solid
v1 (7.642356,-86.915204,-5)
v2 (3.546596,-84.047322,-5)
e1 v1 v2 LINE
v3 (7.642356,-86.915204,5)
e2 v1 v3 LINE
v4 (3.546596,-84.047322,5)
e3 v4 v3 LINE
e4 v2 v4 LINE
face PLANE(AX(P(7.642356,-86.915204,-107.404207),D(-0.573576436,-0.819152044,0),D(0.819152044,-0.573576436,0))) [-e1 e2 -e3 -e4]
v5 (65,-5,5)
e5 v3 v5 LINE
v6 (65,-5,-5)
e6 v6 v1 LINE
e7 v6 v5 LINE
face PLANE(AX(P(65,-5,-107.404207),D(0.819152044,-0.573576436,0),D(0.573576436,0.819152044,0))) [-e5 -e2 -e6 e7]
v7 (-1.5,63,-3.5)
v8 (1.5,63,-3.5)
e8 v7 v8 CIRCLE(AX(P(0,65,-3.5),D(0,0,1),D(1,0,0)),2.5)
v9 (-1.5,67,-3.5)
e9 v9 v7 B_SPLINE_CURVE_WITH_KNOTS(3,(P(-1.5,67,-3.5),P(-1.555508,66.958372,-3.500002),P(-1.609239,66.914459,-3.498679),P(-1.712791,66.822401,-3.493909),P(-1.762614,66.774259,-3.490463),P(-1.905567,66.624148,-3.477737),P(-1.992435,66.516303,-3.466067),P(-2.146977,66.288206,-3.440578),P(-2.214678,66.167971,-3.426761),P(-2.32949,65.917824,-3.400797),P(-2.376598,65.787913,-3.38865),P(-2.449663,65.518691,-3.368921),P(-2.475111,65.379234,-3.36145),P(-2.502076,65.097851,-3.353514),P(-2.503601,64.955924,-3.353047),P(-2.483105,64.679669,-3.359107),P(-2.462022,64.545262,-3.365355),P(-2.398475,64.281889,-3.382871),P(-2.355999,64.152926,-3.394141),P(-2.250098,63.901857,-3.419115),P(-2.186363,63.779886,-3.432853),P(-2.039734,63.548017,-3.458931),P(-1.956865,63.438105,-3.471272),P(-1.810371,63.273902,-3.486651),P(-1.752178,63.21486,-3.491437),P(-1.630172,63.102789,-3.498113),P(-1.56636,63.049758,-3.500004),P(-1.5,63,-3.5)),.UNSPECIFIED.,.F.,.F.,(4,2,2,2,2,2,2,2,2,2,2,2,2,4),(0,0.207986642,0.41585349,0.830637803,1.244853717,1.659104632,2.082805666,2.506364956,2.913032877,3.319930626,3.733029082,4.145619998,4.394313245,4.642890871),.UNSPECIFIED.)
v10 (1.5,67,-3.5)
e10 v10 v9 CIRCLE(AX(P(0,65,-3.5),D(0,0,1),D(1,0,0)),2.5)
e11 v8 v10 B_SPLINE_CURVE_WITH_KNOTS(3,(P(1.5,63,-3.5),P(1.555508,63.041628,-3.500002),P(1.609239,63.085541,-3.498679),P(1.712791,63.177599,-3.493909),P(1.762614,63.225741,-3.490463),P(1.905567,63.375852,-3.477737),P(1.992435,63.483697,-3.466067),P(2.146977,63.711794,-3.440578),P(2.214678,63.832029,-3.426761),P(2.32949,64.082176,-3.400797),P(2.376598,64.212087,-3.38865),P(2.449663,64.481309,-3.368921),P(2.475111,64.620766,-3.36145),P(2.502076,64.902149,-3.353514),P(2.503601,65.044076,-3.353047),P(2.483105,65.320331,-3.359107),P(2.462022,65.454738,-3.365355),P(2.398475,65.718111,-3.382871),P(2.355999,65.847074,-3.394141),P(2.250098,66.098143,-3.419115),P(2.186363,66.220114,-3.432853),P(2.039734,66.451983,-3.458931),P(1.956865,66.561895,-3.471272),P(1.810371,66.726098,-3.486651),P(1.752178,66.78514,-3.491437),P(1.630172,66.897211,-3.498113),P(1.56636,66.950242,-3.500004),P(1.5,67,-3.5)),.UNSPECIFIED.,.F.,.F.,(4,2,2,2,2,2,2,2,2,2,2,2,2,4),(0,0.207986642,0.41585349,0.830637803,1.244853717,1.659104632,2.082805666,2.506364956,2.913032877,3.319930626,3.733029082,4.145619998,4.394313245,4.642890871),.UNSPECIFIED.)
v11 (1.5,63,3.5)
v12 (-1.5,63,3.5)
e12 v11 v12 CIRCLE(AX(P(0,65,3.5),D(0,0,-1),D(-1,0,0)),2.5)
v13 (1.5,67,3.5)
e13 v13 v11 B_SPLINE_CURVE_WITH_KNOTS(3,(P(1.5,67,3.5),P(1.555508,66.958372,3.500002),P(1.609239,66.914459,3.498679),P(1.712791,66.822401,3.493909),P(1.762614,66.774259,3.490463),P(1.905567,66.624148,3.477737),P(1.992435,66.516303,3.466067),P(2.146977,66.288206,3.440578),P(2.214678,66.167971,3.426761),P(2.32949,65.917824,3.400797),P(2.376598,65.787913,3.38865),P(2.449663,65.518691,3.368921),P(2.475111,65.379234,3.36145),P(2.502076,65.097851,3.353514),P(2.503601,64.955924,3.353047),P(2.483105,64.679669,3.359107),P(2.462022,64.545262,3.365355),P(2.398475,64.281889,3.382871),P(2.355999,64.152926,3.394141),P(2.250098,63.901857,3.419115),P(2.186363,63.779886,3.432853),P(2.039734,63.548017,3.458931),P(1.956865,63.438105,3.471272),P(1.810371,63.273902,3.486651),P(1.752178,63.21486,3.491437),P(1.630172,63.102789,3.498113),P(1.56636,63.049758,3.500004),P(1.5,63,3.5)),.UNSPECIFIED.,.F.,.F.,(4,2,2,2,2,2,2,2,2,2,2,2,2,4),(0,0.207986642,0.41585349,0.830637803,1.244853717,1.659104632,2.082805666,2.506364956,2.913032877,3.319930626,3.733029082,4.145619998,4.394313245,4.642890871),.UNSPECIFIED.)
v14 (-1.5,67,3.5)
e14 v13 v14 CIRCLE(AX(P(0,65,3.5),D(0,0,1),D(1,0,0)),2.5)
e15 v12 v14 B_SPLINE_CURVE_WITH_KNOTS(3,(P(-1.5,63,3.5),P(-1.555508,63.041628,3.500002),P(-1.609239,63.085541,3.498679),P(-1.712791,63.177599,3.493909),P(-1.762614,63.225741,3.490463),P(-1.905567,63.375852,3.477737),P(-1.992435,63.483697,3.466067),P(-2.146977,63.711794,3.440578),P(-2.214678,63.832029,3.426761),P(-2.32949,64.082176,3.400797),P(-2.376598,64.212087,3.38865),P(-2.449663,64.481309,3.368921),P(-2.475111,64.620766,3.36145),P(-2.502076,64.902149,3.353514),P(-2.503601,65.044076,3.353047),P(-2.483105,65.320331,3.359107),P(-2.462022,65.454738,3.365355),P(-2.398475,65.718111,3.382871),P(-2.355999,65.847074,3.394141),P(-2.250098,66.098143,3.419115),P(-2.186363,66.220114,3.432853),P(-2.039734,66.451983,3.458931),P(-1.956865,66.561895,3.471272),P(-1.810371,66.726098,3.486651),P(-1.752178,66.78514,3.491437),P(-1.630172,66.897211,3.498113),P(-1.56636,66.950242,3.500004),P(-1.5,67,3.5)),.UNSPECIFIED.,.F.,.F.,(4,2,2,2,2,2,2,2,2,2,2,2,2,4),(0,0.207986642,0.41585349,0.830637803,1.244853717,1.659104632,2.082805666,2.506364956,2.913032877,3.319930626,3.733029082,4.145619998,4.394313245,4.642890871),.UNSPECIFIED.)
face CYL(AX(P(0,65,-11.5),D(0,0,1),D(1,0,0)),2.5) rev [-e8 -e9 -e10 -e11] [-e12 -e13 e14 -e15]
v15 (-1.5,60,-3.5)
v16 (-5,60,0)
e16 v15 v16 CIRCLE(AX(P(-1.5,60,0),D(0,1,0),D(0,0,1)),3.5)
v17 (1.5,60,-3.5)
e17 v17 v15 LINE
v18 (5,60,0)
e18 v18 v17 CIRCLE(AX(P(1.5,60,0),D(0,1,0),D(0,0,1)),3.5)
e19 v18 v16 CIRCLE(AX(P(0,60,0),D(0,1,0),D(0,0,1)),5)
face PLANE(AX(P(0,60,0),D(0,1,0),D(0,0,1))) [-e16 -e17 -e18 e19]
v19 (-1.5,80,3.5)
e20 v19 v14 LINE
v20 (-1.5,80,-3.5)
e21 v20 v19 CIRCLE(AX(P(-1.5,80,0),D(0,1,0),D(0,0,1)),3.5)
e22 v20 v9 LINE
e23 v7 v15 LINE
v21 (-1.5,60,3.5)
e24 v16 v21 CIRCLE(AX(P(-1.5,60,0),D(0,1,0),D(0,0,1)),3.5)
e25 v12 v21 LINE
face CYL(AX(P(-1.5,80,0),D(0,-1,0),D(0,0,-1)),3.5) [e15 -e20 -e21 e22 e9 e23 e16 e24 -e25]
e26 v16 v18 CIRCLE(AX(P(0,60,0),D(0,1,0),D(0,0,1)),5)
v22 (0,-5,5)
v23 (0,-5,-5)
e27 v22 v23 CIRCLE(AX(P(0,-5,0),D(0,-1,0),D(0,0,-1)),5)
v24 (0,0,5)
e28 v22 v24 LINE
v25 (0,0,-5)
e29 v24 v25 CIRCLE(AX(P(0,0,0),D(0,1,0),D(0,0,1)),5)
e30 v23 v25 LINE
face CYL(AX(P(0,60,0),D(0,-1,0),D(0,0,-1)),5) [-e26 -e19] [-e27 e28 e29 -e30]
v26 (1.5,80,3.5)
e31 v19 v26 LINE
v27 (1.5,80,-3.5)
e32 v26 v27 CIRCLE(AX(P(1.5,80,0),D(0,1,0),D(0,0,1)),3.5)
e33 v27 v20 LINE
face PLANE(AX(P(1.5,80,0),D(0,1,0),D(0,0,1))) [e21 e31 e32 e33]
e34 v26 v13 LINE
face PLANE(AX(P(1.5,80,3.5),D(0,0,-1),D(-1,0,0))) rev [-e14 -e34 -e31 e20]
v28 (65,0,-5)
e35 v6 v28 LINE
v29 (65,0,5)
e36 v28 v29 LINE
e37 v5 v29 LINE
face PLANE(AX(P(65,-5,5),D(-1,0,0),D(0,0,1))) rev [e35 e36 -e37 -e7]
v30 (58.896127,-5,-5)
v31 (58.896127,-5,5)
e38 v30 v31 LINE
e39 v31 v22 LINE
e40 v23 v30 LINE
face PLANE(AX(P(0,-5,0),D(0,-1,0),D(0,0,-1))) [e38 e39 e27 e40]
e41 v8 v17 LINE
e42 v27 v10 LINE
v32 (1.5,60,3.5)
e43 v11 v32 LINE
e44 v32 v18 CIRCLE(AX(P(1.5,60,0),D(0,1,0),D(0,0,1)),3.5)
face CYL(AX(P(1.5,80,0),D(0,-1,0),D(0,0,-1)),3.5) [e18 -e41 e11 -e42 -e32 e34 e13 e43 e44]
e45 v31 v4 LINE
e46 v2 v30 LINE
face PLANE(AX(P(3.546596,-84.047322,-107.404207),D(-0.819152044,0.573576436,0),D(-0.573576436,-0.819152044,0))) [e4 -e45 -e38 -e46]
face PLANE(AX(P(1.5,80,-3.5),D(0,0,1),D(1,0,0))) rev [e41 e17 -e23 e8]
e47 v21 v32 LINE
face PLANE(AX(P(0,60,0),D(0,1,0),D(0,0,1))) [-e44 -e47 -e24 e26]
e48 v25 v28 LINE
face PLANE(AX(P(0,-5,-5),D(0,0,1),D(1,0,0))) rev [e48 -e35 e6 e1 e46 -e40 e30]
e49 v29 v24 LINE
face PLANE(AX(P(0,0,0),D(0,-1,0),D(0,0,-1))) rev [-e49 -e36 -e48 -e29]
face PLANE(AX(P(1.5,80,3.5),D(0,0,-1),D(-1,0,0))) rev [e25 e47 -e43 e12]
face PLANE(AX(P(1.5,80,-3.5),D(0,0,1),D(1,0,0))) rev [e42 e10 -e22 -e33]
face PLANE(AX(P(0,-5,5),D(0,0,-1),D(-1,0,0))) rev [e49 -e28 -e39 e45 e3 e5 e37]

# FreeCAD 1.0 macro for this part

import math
import FreeCAD as App
import Part
import Sketcher

V = App.Vector
Q = App.Units.Quantity

doc = App.newDocument("Part")
params = doc.addObject("Spreadsheet::Sheet", "Params")
for row, (alias, value) in enumerate([
    ("sketch1_diameter", "10 mm"),
    ("pad1_length", "60 mm"),
    ("sketch2_radius", "3.5 mm"),
    ("sketch2_width", "3 mm"),
    ("pad2_length", "20 mm"),
    ("sketch3_diameter", "5 mm"),
    ("pocket1_length", "15 mm"),
    ("sketch4_radius", "5 mm"),
    ("sketch4_width", "65 mm"),
    ("pad3_length", "5 mm"),
    ("sketch5_length", "100 mm"),
    ("sketch5_length2", "5 mm"),
    ("pad4_length", "10 mm"),
], start=1):
    params.set(f"A{row}", alias)
    params.set(f"B{row}", "=" + value)
    params.setAlias(f"B{row}", alias)

body = doc.addObject("PartDesign::Body", "Body")

sketch1 = doc.addObject("Sketcher::SketchObject", "Sketch")
body.addObject(sketch1)
sketch1.AttachmentSupport = (doc.XZ_Plane, [""])
sketch1.MapMode = "FlatFace"
sketch1.addGeometry(Part.Circle(V(0, 0, 0), V(0, 0, 1), 5), False)
sketch1.addConstraint(Sketcher.Constraint("Coincident", 0, 3, -1, 1))
sketch1.addConstraint(Sketcher.Constraint("Diameter", 0, 10.0))
sketch1.setExpression("Constraints[1]", "Params.sketch1_diameter")
pad1 = doc.addObject("PartDesign::Pad", "Pad")
body.addObject(pad1)
pad1.Profile = sketch1
pad1.setExpression("Length", "Params.pad1_length")
pad1.Reversed = True

sketch2 = doc.addObject("Sketcher::SketchObject", "Sketch001")
body.addObject(sketch2)
sketch2.AttachmentSupport = (doc.XZ_Plane, [""])
sketch2.MapMode = "FlatFace"
sketch2.AttachmentOffset = App.Placement(V(0, 0, -60), App.Rotation())
sketch2.addGeometry(Part.LineSegment(V(-1.5, 3.5, 0), V(1.5, 3.5, 0)), False)
sketch2.addGeometry(Part.ArcOfCircle(Part.Circle(V(1.5, 0, 0), V(0, 0, 1), 3.5), math.radians(-90), math.radians(90)), False)
sketch2.addGeometry(Part.LineSegment(V(1.5, -3.5, 0), V(-1.5, -3.5, 0)), False)
sketch2.addGeometry(Part.ArcOfCircle(Part.Circle(V(-1.5, 0, 0), V(0, 0, 1), 3.5), math.radians(90), math.radians(270)), False)
sketch2.addConstraint(Sketcher.Constraint("Tangent", 0, 2, 1, 2))
sketch2.addConstraint(Sketcher.Constraint("Tangent", 1, 1, 2, 1))
sketch2.addConstraint(Sketcher.Constraint("Tangent", 2, 2, 3, 2))
sketch2.addConstraint(Sketcher.Constraint("Tangent", 3, 1, 0, 1))
sketch2.addConstraint(Sketcher.Constraint("Horizontal", 0))
sketch2.addConstraint(Sketcher.Constraint("Horizontal", 2))
sketch2.addConstraint(Sketcher.Constraint("Symmetric", 1, 3, 3, 3, -1, 1))
sketch2.addConstraint(Sketcher.Constraint("Radius", 1, 3.5))
sketch2.addConstraint(Sketcher.Constraint("DistanceX", 0, 1, 0, 2, 3.0))
sketch2.setExpression("Constraints[7]", "Params.sketch2_radius")
sketch2.setExpression("Constraints[8]", "Params.sketch2_width")
pad2 = doc.addObject("PartDesign::Pad", "Pad001")
body.addObject(pad2)
pad2.Profile = sketch2
pad2.setExpression("Length", "Params.pad2_length")
pad2.Reversed = True

sketch3 = doc.addObject("Sketcher::SketchObject", "Sketch002")
body.addObject(sketch3)
sketch3.AttachmentSupport = (doc.XY_Plane, [""])
sketch3.MapMode = "FlatFace"
sketch3.AttachmentOffset = App.Placement(V(0, 0, 3.5), App.Rotation())
sketch3.addGeometry(Part.Circle(V(0, 65, 0), V(0, 0, 1), 2.5), False)
sketch3.addConstraint(Sketcher.Constraint("PointOnObject", 0, 3, -2))
sketch3.addConstraint(Sketcher.Constraint("Diameter", 0, 5.0))
sketch3.addConstraint(Sketcher.Constraint("DistanceY", -1, 1, 0, 3, 65.0))
sketch3.setExpression("Constraints[1]", "Params.sketch3_diameter")
pocket1 = doc.addObject("PartDesign::Pocket", "Pocket")
body.addObject(pocket1)
pocket1.Profile = sketch3
pocket1.setExpression("Length", "Params.pocket1_length")

sketch4 = doc.addObject("Sketcher::SketchObject", "Sketch003")
body.addObject(sketch4)
sketch4.AttachmentSupport = (doc.XZ_Plane, [""])
sketch4.MapMode = "FlatFace"
sketch4.AttachmentOffset = App.Placement(V(0, 0, 5), App.Rotation())
sketch4.addGeometry(Part.LineSegment(V(65, 5, 0), V(0, 5, 0)), False)
sketch4.addGeometry(Part.ArcOfCircle(Part.Circle(V(0, 0, 0), V(0, 0, 1), 5), math.radians(90), math.radians(270)), False)
sketch4.addGeometry(Part.LineSegment(V(0, -5, 0), V(65, -5, 0)), False)
sketch4.addGeometry(Part.LineSegment(V(65, -5, 0), V(65, 5, 0)), False)
sketch4.addConstraint(Sketcher.Constraint("Tangent", 0, 2, 1, 1))
sketch4.addConstraint(Sketcher.Constraint("Tangent", 1, 2, 2, 1))
sketch4.addConstraint(Sketcher.Constraint("Coincident", 2, 2, 3, 1))
sketch4.addConstraint(Sketcher.Constraint("Coincident", 3, 2, 0, 1))
sketch4.addConstraint(Sketcher.Constraint("Horizontal", 0))
sketch4.addConstraint(Sketcher.Constraint("Horizontal", 2))
sketch4.addConstraint(Sketcher.Constraint("Vertical", 3))
sketch4.addConstraint(Sketcher.Constraint("Coincident", 1, 3, -1, 1))
sketch4.addConstraint(Sketcher.Constraint("Radius", 1, 5.0))
sketch4.addConstraint(Sketcher.Constraint("DistanceX", 0, 2, 0, 1, 65.0))
sketch4.setExpression("Constraints[8]", "Params.sketch4_radius")
sketch4.setExpression("Constraints[9]", "Params.sketch4_width")
pad3 = doc.addObject("PartDesign::Pad", "Pad002")
body.addObject(pad3)
pad3.Profile = sketch4
pad3.setExpression("Length", "Params.pad3_length")
pad3.Reversed = True

sketch5 = doc.addObject("Sketcher::SketchObject", "Sketch004")
body.addObject(sketch5)
sketch5.AttachmentSupport = (doc.XY_Plane, [""])
sketch5.MapMode = "FlatFace"
sketch5.AttachmentOffset = App.Placement(V(0, 0, 5), App.Rotation())
sketch5.addGeometry(Part.LineSegment(V(8, -87, 0), V(65, -5, 0)), False)
sketch5.addGeometry(Part.LineSegment(V(65, -5, 0), V(59, -5, 0)), False)
sketch5.addGeometry(Part.LineSegment(V(59, -5, 0), V(4, -84, 0)), False)
sketch5.addGeometry(Part.LineSegment(V(4, -84, 0), V(8, -87, 0)), False)
sketch5.addConstraint(Sketcher.Constraint("Coincident", 0, 2, 1, 1))
sketch5.addConstraint(Sketcher.Constraint("Coincident", 1, 2, 2, 1))
sketch5.addConstraint(Sketcher.Constraint("Coincident", 2, 2, 3, 1))
sketch5.addConstraint(Sketcher.Constraint("Coincident", 3, 2, 0, 1))
sketch5.addConstraint(Sketcher.Constraint("Horizontal", 1))
sketch5.addConstraint(Sketcher.Constraint("Parallel", 0, 2))
sketch5.addConstraint(Sketcher.Constraint("Perpendicular", 2, 3))
sketch5.addConstraint(Sketcher.Constraint("Angle", 0, Q("55 deg")))
sketch5.addConstraint(Sketcher.Constraint("Distance", 0, 100.0))
sketch5.addConstraint(Sketcher.Constraint("Distance", 3, 5.0))
sketch5.addConstraint(Sketcher.Constraint("DistanceX", -1, 1, 0, 2, 65.0))
sketch5.addConstraint(Sketcher.Constraint("DistanceY", 0, 2, -1, 1, 5.0))
sketch5.setExpression("Constraints[8]", "Params.sketch5_length")
sketch5.setExpression("Constraints[9]", "Params.sketch5_length2")
pad4 = doc.addObject("PartDesign::Pad", "Pad003")
body.addObject(pad4)
pad4.Profile = sketch5
pad4.setExpression("Length", "Params.pad4_length")
pad4.Reversed = True

doc.recompute()
